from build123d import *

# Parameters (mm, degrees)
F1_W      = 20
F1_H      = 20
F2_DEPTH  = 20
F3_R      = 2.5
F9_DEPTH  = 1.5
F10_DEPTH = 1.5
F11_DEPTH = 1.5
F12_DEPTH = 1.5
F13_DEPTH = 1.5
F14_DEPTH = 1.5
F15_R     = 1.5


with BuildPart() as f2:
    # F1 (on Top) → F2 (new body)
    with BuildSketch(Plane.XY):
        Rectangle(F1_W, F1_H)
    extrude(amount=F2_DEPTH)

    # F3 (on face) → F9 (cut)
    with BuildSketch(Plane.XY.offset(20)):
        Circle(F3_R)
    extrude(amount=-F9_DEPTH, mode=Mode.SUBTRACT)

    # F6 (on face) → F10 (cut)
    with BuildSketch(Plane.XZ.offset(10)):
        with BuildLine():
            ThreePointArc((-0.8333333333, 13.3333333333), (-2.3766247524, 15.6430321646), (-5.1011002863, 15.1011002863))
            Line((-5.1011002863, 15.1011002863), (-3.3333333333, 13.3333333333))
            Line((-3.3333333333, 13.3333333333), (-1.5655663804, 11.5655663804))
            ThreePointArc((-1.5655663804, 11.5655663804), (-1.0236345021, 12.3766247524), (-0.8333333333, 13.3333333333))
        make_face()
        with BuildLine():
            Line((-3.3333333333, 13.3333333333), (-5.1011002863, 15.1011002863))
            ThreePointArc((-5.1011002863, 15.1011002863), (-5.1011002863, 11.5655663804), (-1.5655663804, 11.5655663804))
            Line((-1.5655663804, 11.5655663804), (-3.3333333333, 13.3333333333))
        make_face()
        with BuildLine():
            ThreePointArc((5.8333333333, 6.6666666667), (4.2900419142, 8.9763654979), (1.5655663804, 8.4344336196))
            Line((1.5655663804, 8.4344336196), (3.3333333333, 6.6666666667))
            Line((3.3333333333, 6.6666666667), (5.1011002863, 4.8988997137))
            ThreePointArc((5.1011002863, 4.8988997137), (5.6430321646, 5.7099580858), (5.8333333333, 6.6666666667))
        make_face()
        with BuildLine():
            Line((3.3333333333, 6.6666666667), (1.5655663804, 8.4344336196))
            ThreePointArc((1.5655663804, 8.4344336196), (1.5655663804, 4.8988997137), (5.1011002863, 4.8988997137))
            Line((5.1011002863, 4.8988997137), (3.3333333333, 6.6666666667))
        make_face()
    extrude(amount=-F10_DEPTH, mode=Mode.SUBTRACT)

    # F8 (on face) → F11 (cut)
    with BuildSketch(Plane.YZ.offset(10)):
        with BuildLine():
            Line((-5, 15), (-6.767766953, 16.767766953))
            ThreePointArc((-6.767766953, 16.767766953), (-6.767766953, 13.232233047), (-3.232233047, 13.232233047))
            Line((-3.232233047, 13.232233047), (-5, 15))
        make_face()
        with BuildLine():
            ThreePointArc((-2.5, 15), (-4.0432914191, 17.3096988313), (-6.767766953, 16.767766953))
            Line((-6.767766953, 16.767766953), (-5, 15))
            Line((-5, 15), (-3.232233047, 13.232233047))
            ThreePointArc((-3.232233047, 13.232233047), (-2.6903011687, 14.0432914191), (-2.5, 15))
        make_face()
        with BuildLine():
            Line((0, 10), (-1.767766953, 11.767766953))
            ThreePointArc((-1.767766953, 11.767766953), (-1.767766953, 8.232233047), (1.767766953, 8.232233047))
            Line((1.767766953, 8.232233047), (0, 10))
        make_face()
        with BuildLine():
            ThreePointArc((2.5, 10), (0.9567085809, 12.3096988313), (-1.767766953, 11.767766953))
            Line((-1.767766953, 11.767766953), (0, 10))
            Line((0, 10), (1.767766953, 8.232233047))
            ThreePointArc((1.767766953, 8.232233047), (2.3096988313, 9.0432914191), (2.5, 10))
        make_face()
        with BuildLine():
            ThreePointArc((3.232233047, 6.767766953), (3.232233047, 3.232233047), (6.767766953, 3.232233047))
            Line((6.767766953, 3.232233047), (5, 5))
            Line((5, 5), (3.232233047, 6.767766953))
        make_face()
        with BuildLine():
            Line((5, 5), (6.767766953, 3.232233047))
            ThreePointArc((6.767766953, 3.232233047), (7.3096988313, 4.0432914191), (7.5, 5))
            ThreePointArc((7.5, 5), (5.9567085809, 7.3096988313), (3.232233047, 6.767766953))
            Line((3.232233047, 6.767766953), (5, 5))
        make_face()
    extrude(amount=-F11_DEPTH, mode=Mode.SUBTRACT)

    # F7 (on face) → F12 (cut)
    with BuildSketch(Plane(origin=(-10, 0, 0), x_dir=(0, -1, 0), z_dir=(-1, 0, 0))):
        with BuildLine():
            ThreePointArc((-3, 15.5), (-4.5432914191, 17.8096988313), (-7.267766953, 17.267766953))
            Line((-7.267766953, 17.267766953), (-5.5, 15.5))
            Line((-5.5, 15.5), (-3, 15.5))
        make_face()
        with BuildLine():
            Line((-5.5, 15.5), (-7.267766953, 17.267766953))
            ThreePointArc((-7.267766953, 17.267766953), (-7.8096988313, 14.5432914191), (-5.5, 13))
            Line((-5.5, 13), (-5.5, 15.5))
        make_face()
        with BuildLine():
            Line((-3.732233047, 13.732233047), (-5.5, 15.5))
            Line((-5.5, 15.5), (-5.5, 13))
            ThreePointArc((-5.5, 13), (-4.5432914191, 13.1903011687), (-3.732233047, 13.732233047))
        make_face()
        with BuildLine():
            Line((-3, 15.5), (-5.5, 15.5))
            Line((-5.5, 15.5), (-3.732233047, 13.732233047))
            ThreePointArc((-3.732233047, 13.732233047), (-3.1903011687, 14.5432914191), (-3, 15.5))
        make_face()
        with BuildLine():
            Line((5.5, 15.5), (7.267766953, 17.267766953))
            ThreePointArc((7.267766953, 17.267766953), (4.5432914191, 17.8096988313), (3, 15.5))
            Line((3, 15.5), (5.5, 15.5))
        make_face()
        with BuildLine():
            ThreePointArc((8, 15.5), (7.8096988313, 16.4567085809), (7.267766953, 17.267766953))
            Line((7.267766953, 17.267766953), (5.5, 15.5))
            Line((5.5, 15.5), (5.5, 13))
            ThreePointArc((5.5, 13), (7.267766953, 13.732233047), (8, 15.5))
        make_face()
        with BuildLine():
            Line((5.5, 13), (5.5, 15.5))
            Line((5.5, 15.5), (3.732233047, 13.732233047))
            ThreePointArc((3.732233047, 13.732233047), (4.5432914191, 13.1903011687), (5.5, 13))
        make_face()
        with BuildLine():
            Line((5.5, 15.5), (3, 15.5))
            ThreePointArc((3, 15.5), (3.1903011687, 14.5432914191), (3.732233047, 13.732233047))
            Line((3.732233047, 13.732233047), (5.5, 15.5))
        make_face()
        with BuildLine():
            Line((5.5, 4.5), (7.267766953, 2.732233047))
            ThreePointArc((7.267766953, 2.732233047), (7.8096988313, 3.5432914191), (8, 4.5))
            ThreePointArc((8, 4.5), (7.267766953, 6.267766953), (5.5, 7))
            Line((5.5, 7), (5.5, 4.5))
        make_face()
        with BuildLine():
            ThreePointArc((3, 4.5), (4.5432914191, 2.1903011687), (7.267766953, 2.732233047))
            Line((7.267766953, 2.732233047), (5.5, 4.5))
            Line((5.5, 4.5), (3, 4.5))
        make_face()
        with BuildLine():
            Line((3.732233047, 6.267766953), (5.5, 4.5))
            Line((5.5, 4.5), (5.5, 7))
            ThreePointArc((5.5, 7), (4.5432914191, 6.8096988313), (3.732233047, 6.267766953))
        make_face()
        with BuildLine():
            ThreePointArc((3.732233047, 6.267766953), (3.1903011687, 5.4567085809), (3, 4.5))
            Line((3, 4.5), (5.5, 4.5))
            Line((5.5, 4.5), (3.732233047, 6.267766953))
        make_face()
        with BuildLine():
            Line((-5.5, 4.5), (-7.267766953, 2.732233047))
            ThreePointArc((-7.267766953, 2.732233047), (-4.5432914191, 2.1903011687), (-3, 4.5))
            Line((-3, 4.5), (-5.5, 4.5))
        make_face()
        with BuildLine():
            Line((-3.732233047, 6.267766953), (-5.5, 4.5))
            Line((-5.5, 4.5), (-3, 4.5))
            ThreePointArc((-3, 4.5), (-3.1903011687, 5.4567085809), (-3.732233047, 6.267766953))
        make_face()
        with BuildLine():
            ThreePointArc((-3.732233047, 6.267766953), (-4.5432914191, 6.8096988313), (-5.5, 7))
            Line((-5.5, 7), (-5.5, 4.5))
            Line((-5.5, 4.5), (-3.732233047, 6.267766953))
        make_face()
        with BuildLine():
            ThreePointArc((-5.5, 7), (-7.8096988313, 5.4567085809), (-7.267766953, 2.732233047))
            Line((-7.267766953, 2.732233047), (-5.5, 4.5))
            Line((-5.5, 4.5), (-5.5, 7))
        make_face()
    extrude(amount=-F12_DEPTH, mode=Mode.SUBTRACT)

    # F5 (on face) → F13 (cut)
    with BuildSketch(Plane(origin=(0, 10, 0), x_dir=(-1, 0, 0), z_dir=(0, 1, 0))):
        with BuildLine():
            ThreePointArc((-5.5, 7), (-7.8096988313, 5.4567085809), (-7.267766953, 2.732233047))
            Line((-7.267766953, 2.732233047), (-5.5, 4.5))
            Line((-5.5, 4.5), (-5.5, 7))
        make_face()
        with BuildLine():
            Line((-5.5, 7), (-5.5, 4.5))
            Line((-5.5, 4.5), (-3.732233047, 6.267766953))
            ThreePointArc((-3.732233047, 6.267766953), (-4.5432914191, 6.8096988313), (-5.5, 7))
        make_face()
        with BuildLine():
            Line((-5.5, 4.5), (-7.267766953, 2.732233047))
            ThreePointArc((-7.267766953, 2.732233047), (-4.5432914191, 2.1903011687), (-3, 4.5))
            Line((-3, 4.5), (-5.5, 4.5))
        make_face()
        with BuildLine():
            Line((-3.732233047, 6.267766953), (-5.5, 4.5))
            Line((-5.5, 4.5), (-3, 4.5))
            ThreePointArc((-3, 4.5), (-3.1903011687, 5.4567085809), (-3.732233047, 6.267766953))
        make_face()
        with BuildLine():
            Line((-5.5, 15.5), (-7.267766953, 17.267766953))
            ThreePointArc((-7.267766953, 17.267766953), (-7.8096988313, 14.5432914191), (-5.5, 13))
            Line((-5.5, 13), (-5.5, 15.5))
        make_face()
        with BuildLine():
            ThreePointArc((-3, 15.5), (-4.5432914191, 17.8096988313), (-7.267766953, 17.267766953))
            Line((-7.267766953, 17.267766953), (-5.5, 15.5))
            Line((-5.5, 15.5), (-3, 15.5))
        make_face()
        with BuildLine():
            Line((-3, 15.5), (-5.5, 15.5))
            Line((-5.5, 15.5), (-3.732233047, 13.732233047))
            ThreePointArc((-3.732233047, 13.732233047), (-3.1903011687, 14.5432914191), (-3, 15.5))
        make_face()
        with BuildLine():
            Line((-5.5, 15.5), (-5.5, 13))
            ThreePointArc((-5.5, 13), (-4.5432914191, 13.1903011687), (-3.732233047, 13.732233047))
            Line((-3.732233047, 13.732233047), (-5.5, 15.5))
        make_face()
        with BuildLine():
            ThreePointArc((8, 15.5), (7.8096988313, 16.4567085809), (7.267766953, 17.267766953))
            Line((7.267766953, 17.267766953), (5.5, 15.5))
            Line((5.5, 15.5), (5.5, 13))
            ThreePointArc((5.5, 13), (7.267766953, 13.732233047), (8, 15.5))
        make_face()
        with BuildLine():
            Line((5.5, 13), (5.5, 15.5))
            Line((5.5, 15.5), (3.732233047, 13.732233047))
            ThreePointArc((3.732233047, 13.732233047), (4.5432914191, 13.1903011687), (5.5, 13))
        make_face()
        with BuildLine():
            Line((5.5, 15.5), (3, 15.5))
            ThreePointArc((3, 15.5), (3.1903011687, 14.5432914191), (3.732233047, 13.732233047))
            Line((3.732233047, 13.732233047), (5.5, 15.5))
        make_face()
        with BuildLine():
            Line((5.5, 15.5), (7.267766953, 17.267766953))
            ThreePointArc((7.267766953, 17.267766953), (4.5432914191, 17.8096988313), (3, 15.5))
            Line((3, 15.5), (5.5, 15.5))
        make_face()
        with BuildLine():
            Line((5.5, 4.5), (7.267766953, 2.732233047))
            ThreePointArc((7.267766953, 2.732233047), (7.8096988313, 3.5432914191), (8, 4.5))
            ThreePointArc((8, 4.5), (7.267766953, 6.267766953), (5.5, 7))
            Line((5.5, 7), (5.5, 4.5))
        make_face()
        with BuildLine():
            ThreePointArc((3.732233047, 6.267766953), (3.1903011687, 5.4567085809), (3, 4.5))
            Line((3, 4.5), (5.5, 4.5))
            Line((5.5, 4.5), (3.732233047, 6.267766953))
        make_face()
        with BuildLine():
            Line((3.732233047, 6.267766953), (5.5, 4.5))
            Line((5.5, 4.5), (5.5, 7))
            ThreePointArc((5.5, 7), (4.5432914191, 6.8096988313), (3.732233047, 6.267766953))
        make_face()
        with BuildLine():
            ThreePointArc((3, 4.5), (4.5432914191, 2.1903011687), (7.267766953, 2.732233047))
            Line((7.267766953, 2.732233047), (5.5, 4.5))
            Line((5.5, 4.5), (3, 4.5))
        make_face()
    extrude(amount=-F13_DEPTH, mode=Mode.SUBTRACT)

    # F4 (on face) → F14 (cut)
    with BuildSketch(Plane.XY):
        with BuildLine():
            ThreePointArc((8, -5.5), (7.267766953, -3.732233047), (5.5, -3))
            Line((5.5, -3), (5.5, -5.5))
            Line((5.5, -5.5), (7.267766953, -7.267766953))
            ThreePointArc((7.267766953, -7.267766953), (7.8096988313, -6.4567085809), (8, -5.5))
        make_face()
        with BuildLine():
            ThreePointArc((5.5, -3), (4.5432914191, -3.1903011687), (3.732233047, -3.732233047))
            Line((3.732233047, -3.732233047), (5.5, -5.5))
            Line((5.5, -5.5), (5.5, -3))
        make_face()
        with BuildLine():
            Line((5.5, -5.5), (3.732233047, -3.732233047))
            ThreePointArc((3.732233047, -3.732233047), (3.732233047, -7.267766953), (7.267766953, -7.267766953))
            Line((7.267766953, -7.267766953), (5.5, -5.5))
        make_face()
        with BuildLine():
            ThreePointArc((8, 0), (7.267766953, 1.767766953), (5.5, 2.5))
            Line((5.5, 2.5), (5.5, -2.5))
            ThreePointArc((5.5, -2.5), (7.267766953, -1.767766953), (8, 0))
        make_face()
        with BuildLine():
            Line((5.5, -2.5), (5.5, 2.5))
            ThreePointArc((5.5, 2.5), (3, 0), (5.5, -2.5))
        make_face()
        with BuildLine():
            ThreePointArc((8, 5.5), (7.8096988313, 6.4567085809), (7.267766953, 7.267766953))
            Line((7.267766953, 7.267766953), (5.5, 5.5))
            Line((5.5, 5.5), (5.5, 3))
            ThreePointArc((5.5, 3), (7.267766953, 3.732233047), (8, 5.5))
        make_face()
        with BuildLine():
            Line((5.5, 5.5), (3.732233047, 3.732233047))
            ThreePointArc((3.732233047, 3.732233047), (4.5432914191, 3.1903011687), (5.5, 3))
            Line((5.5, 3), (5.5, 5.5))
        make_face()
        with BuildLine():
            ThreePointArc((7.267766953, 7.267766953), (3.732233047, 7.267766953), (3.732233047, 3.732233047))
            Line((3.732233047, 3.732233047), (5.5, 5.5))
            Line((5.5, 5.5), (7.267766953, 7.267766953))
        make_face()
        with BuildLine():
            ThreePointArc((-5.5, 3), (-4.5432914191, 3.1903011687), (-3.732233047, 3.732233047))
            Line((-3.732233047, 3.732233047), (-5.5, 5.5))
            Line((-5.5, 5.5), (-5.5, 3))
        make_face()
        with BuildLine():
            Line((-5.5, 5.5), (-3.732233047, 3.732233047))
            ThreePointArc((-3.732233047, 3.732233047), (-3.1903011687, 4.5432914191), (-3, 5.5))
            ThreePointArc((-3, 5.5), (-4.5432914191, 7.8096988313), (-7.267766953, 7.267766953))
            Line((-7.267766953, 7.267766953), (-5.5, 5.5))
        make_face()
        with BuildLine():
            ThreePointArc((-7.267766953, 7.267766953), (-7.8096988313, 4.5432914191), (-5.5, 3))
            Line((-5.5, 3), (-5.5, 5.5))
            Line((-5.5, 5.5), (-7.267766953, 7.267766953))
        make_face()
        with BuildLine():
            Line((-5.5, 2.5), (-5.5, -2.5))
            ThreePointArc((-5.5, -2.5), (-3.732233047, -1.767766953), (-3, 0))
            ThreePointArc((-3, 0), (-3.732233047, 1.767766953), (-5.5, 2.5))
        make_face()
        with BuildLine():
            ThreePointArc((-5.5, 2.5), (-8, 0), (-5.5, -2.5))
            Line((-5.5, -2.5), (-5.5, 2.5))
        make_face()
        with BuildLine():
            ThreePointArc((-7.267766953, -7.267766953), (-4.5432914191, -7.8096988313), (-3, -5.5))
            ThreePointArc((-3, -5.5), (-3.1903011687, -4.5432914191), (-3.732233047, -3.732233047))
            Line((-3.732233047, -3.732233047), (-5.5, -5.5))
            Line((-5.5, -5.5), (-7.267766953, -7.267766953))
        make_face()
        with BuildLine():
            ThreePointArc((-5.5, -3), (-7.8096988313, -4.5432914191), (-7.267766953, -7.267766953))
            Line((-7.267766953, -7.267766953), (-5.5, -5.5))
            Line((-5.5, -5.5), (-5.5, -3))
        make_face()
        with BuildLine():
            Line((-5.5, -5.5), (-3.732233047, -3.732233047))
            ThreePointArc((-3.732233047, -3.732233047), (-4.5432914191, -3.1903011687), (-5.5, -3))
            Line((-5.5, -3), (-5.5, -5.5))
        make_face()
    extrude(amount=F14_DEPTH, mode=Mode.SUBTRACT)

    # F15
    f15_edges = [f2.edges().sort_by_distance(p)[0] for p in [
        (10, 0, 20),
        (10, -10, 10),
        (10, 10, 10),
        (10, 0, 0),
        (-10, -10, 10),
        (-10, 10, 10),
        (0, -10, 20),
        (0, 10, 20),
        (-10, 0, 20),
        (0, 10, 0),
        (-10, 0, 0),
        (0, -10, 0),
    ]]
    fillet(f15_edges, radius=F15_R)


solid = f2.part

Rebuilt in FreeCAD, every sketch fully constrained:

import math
import FreeCAD as App
import Part
import Sketcher
from FreeCAD import Vector
Q = App.Units.Quantity


def edges_at(feature, points):
    """Names of the edges that pass closest to the given points."""
    edges = feature.Shape.Edges
    near = lambda p: min(range(len(edges)), key=lambda i: edges[i].distToShape(Part.Vertex(*p))[0])
    return sorted({f"Edge{near(p) + 1}" for p in points})


def add_polygon(sketch, points):
    """Adds a closed chain of lines whose ends are joined by coincident constraints."""
    first, n = sketch.GeometryCount, len(points)
    for a, b in zip(points, points[1:] + points[:1]):
        sketch.addGeometry(Part.LineSegment(App.Vector(*a, 0), App.Vector(*b, 0)), False)
    for i in range(n):
        sketch.addConstraint(Sketcher.Constraint("Coincident", first + i, 2, first + (i + 1) % n, 1))

doc = App.newDocument("Part")
params = doc.addObject("Spreadsheet::Sheet", "Params")
for row, (alias, value) in enumerate([
    ("sketch1_width", "20 mm"),
    ("pad1_length", "20 mm"),
    ("sketch2_diameter", "5 mm"),
    ("pocket1_length", "1.5 mm"),
    ("sketch3_radius", "2.5 mm"),
    ("pocket2_length", "1.5 mm"),
    ("sketch4_radius", "2.5 mm"),
    ("pocket3_length", "1.5 mm"),
    ("sketch5_radius", "2.5 mm"),
    ("pocket4_length", "1.5 mm"),
    ("sketch6_radius", "2.5 mm"),
    ("pocket5_length", "1.5 mm"),
    ("sketch7_radius", "2.5 mm"),
    ("pocket6_length", "1.5 mm"),
    ("fillet_radius", "1.5 mm"),
], start=1):
    params.set(f"A{row}", alias)
    params.set(f"B{row}", "=" + value)
    params.setAlias(f"B{row}", alias)

body = doc.addObject("PartDesign::Body", "Body")

# Sketch on XY plane
sketch1 = doc.addObject("Sketcher::SketchObject", "Sketch")
body.addObject(sketch1)
sketch1.AttachmentSupport = (doc.XY_Plane, [""])
sketch1.MapMode = "FlatFace"
add_polygon(sketch1, [(-10, 10), (-10, -10), (10, -10), (10, 10)])  # lines 0-3
sketch1.addConstraint([
    Sketcher.Constraint("Vertical", 0),
    Sketcher.Constraint("Horizontal", 1),
    Sketcher.Constraint("Vertical", 2),
    Sketcher.Constraint("Horizontal", 3),
    Sketcher.Constraint("Symmetric", 0, 2, 2, 2, -1, 1),
    Sketcher.Constraint("Equal", 3, 0),
    Sketcher.Constraint("DistanceX", 1, 1, 1, 2, Q("20 mm")),
])
sketch1.setExpression("Constraints[10]", "Params.sketch1_width")
pad1 = doc.addObject("PartDesign::Pad", "Pad")
body.addObject(pad1)
pad1.Profile = sketch1
pad1.setExpression("Length", "Params.pad1_length")

# Sketch on XY plane
sketch2 = doc.addObject("Sketcher::SketchObject", "Sketch001")
body.addObject(sketch2)
sketch2.AttachmentSupport = (doc.XY_Plane, [""])
sketch2.MapMode = "FlatFace"
sketch2.AttachmentOffset = App.Placement(Vector(0, 0, 20), App.Rotation())
sketch2.addGeometry(Part.Circle(Vector(0, 0, 0), Vector(0, 0, 1), 2.5), False)
sketch2.addConstraint([
    Sketcher.Constraint("Coincident", 0, 3, -1, 1),
    Sketcher.Constraint("Diameter", 0, Q("5 mm")),
])
sketch2.setExpression("Constraints[1]", "Params.sketch2_diameter")
pocket1 = doc.addObject("PartDesign::Pocket", "Pocket")
body.addObject(pocket1)
pocket1.Profile = sketch2
pocket1.setExpression("Length", "Params.pocket1_length")

# Sketch on XZ plane
sketch3 = doc.addObject("Sketcher::SketchObject", "Sketch002")
body.addObject(sketch3)
sketch3.AttachmentSupport = (doc.XZ_Plane, [""])
sketch3.MapMode = "FlatFace"
sketch3.AttachmentOffset = App.Placement(Vector(0, 0, 10), App.Rotation())
sketch3.addGeometry([
    Part.ArcOfCircle(Part.Circle(Vector(-3.3, 13.3, 0), Vector(0, 0, 1), 2.5), math.radians(0), math.radians(135)),  # 0
    Part.ArcOfCircle(Part.Circle(Vector(-3.3, 13.3, 0), Vector(0, 0, 1), 2.5), math.radians(135), math.radians(315)),  # 1
    Part.ArcOfCircle(Part.Circle(Vector(-3.3, 13.3, 0), Vector(0, 0, 1), 2.5), math.radians(-45), math.radians(0)),  # 2
    Part.ArcOfCircle(Part.Circle(Vector(3.3, 6.7, 0), Vector(0, 0, 1), 2.5), math.radians(0), math.radians(135)),  # 3
    Part.ArcOfCircle(Part.Circle(Vector(3.3, 6.7, 0), Vector(0, 0, 1), 2.5), math.radians(135), math.radians(315)),  # 4
    Part.ArcOfCircle(Part.Circle(Vector(3.3, 6.7, 0), Vector(0, 0, 1), 2.5), math.radians(-45), math.radians(0)),  # 5
], False)
sketch3.addConstraint([
    Sketcher.Constraint("Tangent", 0, 2, 1, 1),
    Sketcher.Constraint("Tangent", 1, 2, 2, 1),
    Sketcher.Constraint("Tangent", 2, 2, 0, 1),
    Sketcher.Constraint("Tangent", 3, 2, 4, 1),
    Sketcher.Constraint("Tangent", 4, 2, 5, 1),
    Sketcher.Constraint("Tangent", 5, 2, 3, 1),
    Sketcher.Constraint("Equal", 2, 3),
    Sketcher.Constraint("Horizontal", 1, 3, 2, 2),
    Sketcher.Constraint("Horizontal", 4, 3, 5, 2),
    Sketcher.Constraint("Radius", 0, Q("2.5 mm")),
    Sketcher.Constraint("DistanceX", 0, 2, -1, 1, Q("5.1011 mm")),
    Sketcher.Constraint("DistanceY", -1, 1, 0, 2, Q("15.1011 mm")),
    Sketcher.Constraint("DistanceX", -1, 1, 4, 2, Q("5.1011 mm")),
    Sketcher.Constraint("DistanceY", -1, 1, 4, 2, Q("4.8989 mm")),
    Sketcher.Constraint("DistanceX", 1, 2, 3, 3, Q("4.8989 mm")),
    Sketcher.Constraint("DistanceX", 2, 2, 3, 2, Q("2.3989 mm")),
    Sketcher.Constraint("DistanceX", 0, 3, -1, 1, Q("3.333333 mm")),
    Sketcher.Constraint("DistanceX", -1, 1, 3, 3, Q("3.333333 mm")),
])
sketch3.setExpression("Constraints[9]", "Params.sketch3_radius")
pocket2 = doc.addObject("PartDesign::Pocket", "Pocket001")
body.addObject(pocket2)
pocket2.Profile = sketch3
pocket2.setExpression("Length", "Params.pocket2_length")

# Sketch on YZ plane
sketch4 = doc.addObject("Sketcher::SketchObject", "Sketch003")
body.addObject(sketch4)
sketch4.AttachmentSupport = (doc.YZ_Plane, [""])
sketch4.MapMode = "FlatFace"
sketch4.AttachmentOffset = App.Placement(Vector(0, 0, 10), App.Rotation())
sketch4.addGeometry([
    Part.ArcOfCircle(Part.Circle(Vector(-5, 15, 0), Vector(0, 0, 1), 2.5), math.radians(135), math.radians(315)),  # 0
    Part.ArcOfCircle(Part.Circle(Vector(-5, 15, 0), Vector(0, 0, 1), 2.5), math.radians(-45), math.radians(0)),  # 1
    Part.ArcOfCircle(Part.Circle(Vector(-5, 15, 0), Vector(0, 0, 1), 2.5), math.radians(0), math.radians(135)),  # 2
    Part.ArcOfCircle(Part.Circle(Vector(0, 10, 0), Vector(0, 0, 1), 2.5), math.radians(135), math.radians(315)),  # 3
    Part.ArcOfCircle(Part.Circle(Vector(0, 10, 0), Vector(0, 0, 1), 2.5), math.radians(-45), math.radians(0)),  # 4
    Part.ArcOfCircle(Part.Circle(Vector(0, 10, 0), Vector(0, 0, 1), 2.5), math.radians(0), math.radians(135)),  # 5
    Part.ArcOfCircle(Part.Circle(Vector(5, 5, 0), Vector(0, 0, 1), 2.5), math.radians(135), math.radians(315)),  # 6
    Part.ArcOfCircle(Part.Circle(Vector(5, 5, 0), Vector(0, 0, 1), 2.5), math.radians(-45), math.radians(0)),  # 7
    Part.ArcOfCircle(Part.Circle(Vector(5, 5, 0), Vector(0, 0, 1), 2.5), math.radians(0), math.radians(135)),  # 8
], False)
sketch4.addConstraint([
    Sketcher.Constraint("Tangent", 0, 2, 1, 1),
    Sketcher.Constraint("Tangent", 1, 2, 2, 1),
    Sketcher.Constraint("Tangent", 2, 2, 0, 1),
    Sketcher.Constraint("Tangent", 3, 2, 4, 1),
    Sketcher.Constraint("Tangent", 4, 2, 5, 1),
    Sketcher.Constraint("Tangent", 5, 2, 3, 1),
    Sketcher.Constraint("Tangent", 6, 2, 7, 1),
    Sketcher.Constraint("Tangent", 7, 2, 8, 1),
    Sketcher.Constraint("Tangent", 8, 2, 6, 1),
    Sketcher.Constraint("Equal", 2, 3),
    Sketcher.Constraint("Equal", 5, 6),
    Sketcher.Constraint("PointOnObject", 3, 3, -2),
    Sketcher.Constraint("Horizontal", 2, 3, 1, 2),
    Sketcher.Constraint("Horizontal", 5, 3, 4, 2),
    Sketcher.Constraint("Horizontal", 8, 3, 7, 2),
    Sketcher.Constraint("Radius", 0, Q("2.5 mm")),
    Sketcher.Constraint("DistanceX", 0, 3, -1, 1, Q("5 mm")),
    Sketcher.Constraint("DistanceY", -1, 1, 0, 3, Q("15 mm")),
    Sketcher.Constraint("DistanceY", -1, 1, 3, 3, Q("10 mm")),
    Sketcher.Constraint("DistanceX", -1, 1, 6, 3, Q("5 mm")),
    Sketcher.Constraint("DistanceY", -1, 1, 6, 3, Q("5 mm")),
    Sketcher.Constraint("DistanceX", 3, 2, 6, 2, Q("5 mm")),
    Sketcher.Constraint("DistanceX", 0, 2, -1, 1, Q("3.232233 mm")),
    Sketcher.Constraint("DistanceX", 2, 2, -1, 1, Q("6.767767 mm")),
    Sketcher.Constraint("DistanceX", -1, 1, 3, 2, Q("1.767767 mm")),
    Sketcher.Constraint("DistanceX", 5, 2, -1, 1, Q("1.767767 mm")),
    Sketcher.Constraint("DistanceX", -1, 1, 8, 2, Q("3.232233 mm")),
])
sketch4.setExpression("Constraints[15]", "Params.sketch4_radius")
pocket3 = doc.addObject("PartDesign::Pocket", "Pocket002")
body.addObject(pocket3)
pocket3.Profile = sketch4
pocket3.setExpression("Length", "Params.pocket3_length")

# Sketch on YZ plane
sketch5 = doc.addObject("Sketcher::SketchObject", "Sketch004")
body.addObject(sketch5)
sketch5.AttachmentSupport = (doc.YZ_Plane, [""])
sketch5.MapMode = "FlatFace"
sketch5.AttachmentOffset = App.Placement(Vector(0, 0, -10), App.Rotation())
sketch5.addGeometry([
    Part.ArcOfCircle(Part.Circle(Vector(5.5, 15.5, 0), Vector(0, 0, 1), 2.5), math.radians(45), math.radians(180)),  # 0
    Part.ArcOfCircle(Part.Circle(Vector(5.5, 15.5, 0), Vector(0, 0, 1), 2.5), math.radians(-90), math.radians(45)),  # 1
    Part.ArcOfCircle(Part.Circle(Vector(5.5, 15.5, 0), Vector(0, 0, 1), 2.5), math.radians(-135), math.radians(-90)),  # 2
    Part.ArcOfCircle(Part.Circle(Vector(5.5, 15.5, 0), Vector(0, 0, 1), 2.5), math.radians(180), math.radians(225)),  # 3
    Part.ArcOfCircle(Part.Circle(Vector(-5.5, 15.5, 0), Vector(0, 0, 1), 2.5), math.radians(0), math.radians(135)),  # 4
    Part.ArcOfCircle(Part.Circle(Vector(-5.5, 15.5, 0), Vector(0, 0, 1), 2.5), math.radians(-45), math.radians(0)),  # 5
    Part.ArcOfCircle(Part.Circle(Vector(-5.5, 15.5, 0), Vector(0, 0, 1), 2.5), math.radians(-90), math.radians(-45)),  # 6
    Part.ArcOfCircle(Part.Circle(Vector(-5.5, 15.5, 0), Vector(0, 0, 1), 2.5), math.radians(180), math.radians(270)),  # 7
    Part.ArcOfCircle(Part.Circle(Vector(-5.5, 15.5, 0), Vector(0, 0, 1), 2.5), math.radians(135), math.radians(180)),  # 8
    Part.ArcOfCircle(Part.Circle(Vector(-5.5, 4.5, 0), Vector(0, 0, 1), 2.5), math.radians(180), math.radians(225)),  # 9
    Part.ArcOfCircle(Part.Circle(Vector(-5.5, 4.5, 0), Vector(0, 0, 1), 2.5), math.radians(90), math.radians(180)),  # 10
    Part.ArcOfCircle(Part.Circle(Vector(-5.5, 4.5, 0), Vector(0, 0, 1), 2.5), math.radians(45), math.radians(90)),  # 11
    Part.ArcOfCircle(Part.Circle(Vector(-5.5, 4.5, 0), Vector(0, 0, 1), 2.5), math.radians(0), math.radians(45)),  # 12
    Part.ArcOfCircle(Part.Circle(Vector(-5.5, 4.5, 0), Vector(0, 0, 1), 2.5), math.radians(-135), math.radians(0)),  # 13
    Part.ArcOfCircle(Part.Circle(Vector(5.5, 4.5, 0), Vector(0, 0, 1), 2.5), math.radians(180), math.radians(315)),  # 14
    Part.ArcOfCircle(Part.Circle(Vector(5.5, 4.5, 0), Vector(0, 0, 1), 2.5), math.radians(135), math.radians(180)),  # 15
    Part.ArcOfCircle(Part.Circle(Vector(5.5, 4.5, 0), Vector(0, 0, 1), 2.5), math.radians(90), math.radians(135)),  # 16
    Part.ArcOfCircle(Part.Circle(Vector(5.5, 4.5, 0), Vector(0, 0, 1), 2.5), math.radians(-45), math.radians(90)),  # 17
], False)
sketch5.addConstraint([
    Sketcher.Constraint("Tangent", 0, 1, 1, 2),
    Sketcher.Constraint("Tangent", 1, 1, 2, 2),
    Sketcher.Constraint("Tangent", 2, 1, 3, 2),
    Sketcher.Constraint("Tangent", 3, 1, 0, 2),
    Sketcher.Constraint("Tangent", 4, 1, 5, 2),
    Sketcher.Constraint("Tangent", 5, 1, 6, 2),
    Sketcher.Constraint("Tangent", 6, 1, 7, 2),
    Sketcher.Constraint("Tangent", 7, 1, 8, 2),
    Sketcher.Constraint("Tangent", 8, 1, 4, 2),
    Sketcher.Constraint("Tangent", 9, 1, 10, 2),
    Sketcher.Constraint("Tangent", 10, 1, 11, 2),
    Sketcher.Constraint("Tangent", 11, 1, 12, 2),
    Sketcher.Constraint("Tangent", 12, 1, 13, 2),
    Sketcher.Constraint("Tangent", 13, 1, 9, 2),
    Sketcher.Constraint("Tangent", 14, 1, 15, 2),
    Sketcher.Constraint("Tangent", 15, 1, 16, 2),
    Sketcher.Constraint("Tangent", 16, 1, 17, 2),
    Sketcher.Constraint("Tangent", 17, 1, 14, 2),
    Sketcher.Constraint("Coincident", 6, 3, 4, 3),
    Sketcher.Constraint("Coincident", 11, 3, 9, 3),
    Sketcher.Constraint("Equal", 0, 1),
    Sketcher.Constraint("Equal", 3, 4),
    Sketcher.Constraint("Equal", 8, 9),
    Sketcher.Constraint("Equal", 13, 14),
    Sketcher.Constraint("Equal", 14, 15),
    Sketcher.Constraint("Symmetric", 0, 3, 4, 3, -2),
    Sketcher.Constraint("Symmetric", 9, 3, 14, 3, -2),
    Sketcher.Constraint("Horizontal", 8, 3, 3, 1),
    Sketcher.Constraint("Horizontal", 3, 1, 4, 1),
    Sketcher.Constraint("Horizontal", 2, 1, 5, 1),
    Sketcher.Constraint("Horizontal", 4, 1, 7, 1),
    Sketcher.Constraint("Horizontal", 0, 1, 8, 1),
    Sketcher.Constraint("Horizontal", 17, 3, 9, 1),
    Sketcher.Constraint("Horizontal", 9, 1, 12, 1),
    Sketcher.Constraint("Horizontal", 12, 1, 14, 1),
    Sketcher.Constraint("Horizontal", 11, 1, 15, 1),
    Sketcher.Constraint("Horizontal", 13, 1, 17, 1),
    Sketcher.Constraint("Vertical", 8, 3, 9, 3),
    Sketcher.Constraint("Vertical", 17, 3, 1, 1),
    Sketcher.Constraint("Vertical", 13, 3, 6, 1),
    Sketcher.Constraint("Vertical", 6, 1, 10, 1),
    Sketcher.Constraint("Vertical", 5, 1, 11, 1),
    Sketcher.Constraint("Vertical", 8, 1, 13, 1),
    Sketcher.Constraint("Vertical", 1, 1, 16, 1),
    Sketcher.Constraint("Radius", 0, Q("2.5 mm")),
    Sketcher.Constraint("DistanceY", -1, 1, 1, 1, Q("13 mm")),
    Sketcher.Constraint("DistanceX", -1, 1, 3, 1, Q("3 mm")),
    Sketcher.Constraint("DistanceY", -1, 1, 10, 1, Q("7 mm")),
    Sketcher.Constraint("DistanceX", -1, 1, 0, 1, Q("7.267767 mm")),
    Sketcher.Constraint("DistanceX", -1, 1, 2, 1, Q("3.732233 mm")),
])
sketch5.setExpression("Constraints[44]", "Params.sketch5_radius")
pocket4 = doc.addObject("PartDesign::Pocket", "Pocket003")
body.addObject(pocket4)
pocket4.Profile = sketch5
pocket4.setExpression("Length", "Params.pocket4_length")
pocket4.Reversed = True

# Sketch on XZ plane
sketch6 = doc.addObject("Sketcher::SketchObject", "Sketch005")
body.addObject(sketch6)
sketch6.AttachmentSupport = (doc.XZ_Plane, [""])
sketch6.MapMode = "FlatFace"
sketch6.AttachmentOffset = App.Placement(Vector(0, 0, -10), App.Rotation())
sketch6.addGeometry([
    Part.ArcOfCircle(Part.Circle(Vector(5.5, 4.5, 0), Vector(0, 0, 1), 2.5), math.radians(-45), math.radians(90)),  # 0
    Part.ArcOfCircle(Part.Circle(Vector(5.5, 4.5, 0), Vector(0, 0, 1), 2.5), math.radians(180), math.radians(315)),  # 1
    Part.ArcOfCircle(Part.Circle(Vector(5.5, 4.5, 0), Vector(0, 0, 1), 2.5), math.radians(135), math.radians(180)),  # 2
    Part.ArcOfCircle(Part.Circle(Vector(5.5, 4.5, 0), Vector(0, 0, 1), 2.5), math.radians(90), math.radians(135)),  # 3
    Part.ArcOfCircle(Part.Circle(Vector(5.5, 15.5, 0), Vector(0, 0, 1), 2.5), math.radians(-90), math.radians(45)),  # 4
    Part.ArcOfCircle(Part.Circle(Vector(5.5, 15.5, 0), Vector(0, 0, 1), 2.5), math.radians(-135), math.radians(-90)),  # 5
    Part.ArcOfCircle(Part.Circle(Vector(5.5, 15.5, 0), Vector(0, 0, 1), 2.5), math.radians(180), math.radians(225)),  # 6
    Part.ArcOfCircle(Part.Circle(Vector(5.5, 15.5, 0), Vector(0, 0, 1), 2.5), math.radians(45), math.radians(180)),  # 7
    Part.ArcOfCircle(Part.Circle(Vector(-5.5, 15.5, 0), Vector(0, 0, 1), 2.5), math.radians(135), math.radians(180)),  # 8
    Part.ArcOfCircle(Part.Circle(Vector(-5.5, 15.5, 0), Vector(0, 0, 1), 2.5), math.radians(0), math.radians(135)),  # 9
    Part.ArcOfCircle(Part.Circle(Vector(-5.5, 15.5, 0), Vector(0, 0, 1), 2.5), math.radians(-45), math.radians(0)),  # 10
    Part.ArcOfCircle(Part.Circle(Vector(-5.5, 15.5, 0), Vector(0, 0, 1), 2.5), math.radians(-90), math.radians(-45)),  # 11
    Part.ArcOfCircle(Part.Circle(Vector(-5.5, 15.5, 0), Vector(0, 0, 1), 2.5), math.radians(180), math.radians(270)),  # 12
    Part.ArcOfCircle(Part.Circle(Vector(-5.5, 4.5, 0), Vector(0, 0, 1), 2.5), math.radians(180), math.radians(225)),  # 13
    Part.ArcOfCircle(Part.Circle(Vector(-5.5, 4.5, 0), Vector(0, 0, 1), 2.5), math.radians(90), math.radians(180)),  # 14
    Part.ArcOfCircle(Part.Circle(Vector(-5.5, 4.5, 0), Vector(0, 0, 1), 2.5), math.radians(45), math.radians(90)),  # 15
    Part.ArcOfCircle(Part.Circle(Vector(-5.5, 4.5, 0), Vector(0, 0, 1), 2.5), math.radians(0), math.radians(45)),  # 16
    Part.ArcOfCircle(Part.Circle(Vector(-5.5, 4.5, 0), Vector(0, 0, 1), 2.5), math.radians(-135), math.radians(0)),  # 17
], False)
sketch6.addConstraint([
    Sketcher.Constraint("Tangent", 0, 1, 1, 2),
    Sketcher.Constraint("Tangent", 1, 1, 2, 2),
    Sketcher.Constraint("Tangent", 2, 1, 3, 2),
    Sketcher.Constraint("Tangent", 3, 1, 0, 2),
    Sketcher.Constraint("Tangent", 4, 1, 5, 2),
    Sketcher.Constraint("Tangent", 5, 1, 6, 2),
    Sketcher.Constraint("Tangent", 6, 1, 7, 2),
    Sketcher.Constraint("Tangent", 7, 1, 4, 2),
    Sketcher.Constraint("Tangent", 8, 1, 9, 2),
    Sketcher.Constraint("Tangent", 9, 1, 10, 2),
    Sketcher.Constraint("Tangent", 10, 1, 11, 2),
    Sketcher.Constraint("Tangent", 11, 1, 12, 2),
    Sketcher.Constraint("Tangent", 12, 1, 8, 2),
    Sketcher.Constraint("Tangent", 13, 1, 14, 2),
    Sketcher.Constraint("Tangent", 14, 1, 15, 2),
    Sketcher.Constraint("Tangent", 15, 1, 16, 2),
    Sketcher.Constraint("Tangent", 16, 1, 17, 2),
    Sketcher.Constraint("Tangent", 17, 1, 13, 2),
    Sketcher.Constraint("Coincident", 10, 3, 8, 3),
    Sketcher.Constraint("Coincident", 15, 3, 13, 3),
    Sketcher.Constraint("Equal", 0, 1),
    Sketcher.Constraint("Equal", 3, 4),
    Sketcher.Constraint("Equal", 4, 5),
    Sketcher.Constraint("Equal", 7, 8),
    Sketcher.Constraint("Equal", 12, 13),
    Sketcher.Constraint("Symmetric", 4, 3, 8, 3, -2),
    Sketcher.Constraint("Symmetric", 0, 3, 13, 3, -2),
    Sketcher.Constraint("Horizontal", 17, 3, 1, 1),
    Sketcher.Constraint("Horizontal", 12, 3, 6, 1),
    Sketcher.Constraint("Horizontal", 7, 1, 8, 1),
    Sketcher.Constraint("Horizontal", 6, 1, 9, 1),
    Sketcher.Constraint("Horizontal", 5, 1, 10, 1),
    Sketcher.Constraint("Horizontal", 9, 1, 12, 1),
    Sketcher.Constraint("Horizontal", 1, 1, 13, 1),
    Sketcher.Constraint("Horizontal", 2, 1, 15, 1),
    Sketcher.Constraint("Horizontal", 13, 1, 16, 1),
    Sketcher.Constraint("Horizontal", 0, 1, 17, 1),
    Sketcher.Constraint("Vertical", 3, 3, 4, 3),
    Sketcher.Constraint("Vertical", 7, 3, 3, 1),
    Sketcher.Constraint("Vertical", 3, 1, 4, 1),
    Sketcher.Constraint("Vertical", 2, 1, 5, 1),
    Sketcher.Constraint("Vertical", 0, 1, 7, 1),
    Sketcher.Constraint("Vertical", 17, 3, 11, 1),
    Sketcher.Constraint("Vertical", 11, 1, 14, 1),
    Sketcher.Constraint("Radius", 0, Q("2.5 mm")),
    Sketcher.Constraint("DistanceX", -1, 1, 1, 1, Q("3 mm")),
    Sketcher.Constraint("DistanceY", -1, 1, 3, 1, Q("7 mm")),
    Sketcher.Constraint("DistanceY", -1, 1, 4, 1, Q("13 mm")),
    Sketcher.Constraint("DistanceX", -1, 1, 0, 1, Q("7.267767 mm")),
    Sketcher.Constraint("DistanceX", -1, 1, 2, 1, Q("3.732233 mm")),
])
sketch6.setExpression("Constraints[44]", "Params.sketch6_radius")
pocket5 = doc.addObject("PartDesign::Pocket", "Pocket004")
body.addObject(pocket5)
pocket5.Profile = sketch6
pocket5.setExpression("Length", "Params.pocket5_length")
pocket5.Reversed = True

# Sketch on XY plane
sketch7 = doc.addObject("Sketcher::SketchObject", "Sketch006")
body.addObject(sketch7)
sketch7.AttachmentSupport = (doc.XY_Plane, [""])
sketch7.MapMode = "FlatFace"
sketch7.addGeometry([
    Part.ArcOfCircle(Part.Circle(Vector(5.5, -5.5, 0), Vector(0, 0, 1), 2.5), math.radians(0), math.radians(90)),  # 0
    Part.ArcOfCircle(Part.Circle(Vector(5.5, -5.5, 0), Vector(0, 0, 1), 2.5), math.radians(90), math.radians(135)),  # 1
    Part.ArcOfCircle(Part.Circle(Vector(5.5, -5.5, 0), Vector(0, 0, 1), 2.5), math.radians(135), math.radians(315)),  # 2
    Part.ArcOfCircle(Part.Circle(Vector(5.5, -5.5, 0), Vector(0, 0, 1), 2.5), math.radians(-45), math.radians(0)),  # 3
    Part.ArcOfCircle(Part.Circle(Vector(5.5, 0, 0), Vector(0, 0, 1), 2.5), math.radians(0), math.radians(90)),  # 4
    Part.ArcOfCircle(Part.Circle(Vector(5.5, 0, 0), Vector(0, 0, 1), 2.5), math.radians(90), math.radians(270)),  # 5
    Part.ArcOfCircle(Part.Circle(Vector(5.5, 0, 0), Vector(0, 0, 1), 2.5), math.radians(-90), math.radians(0)),  # 6
    Part.ArcOfCircle(Part.Circle(Vector(5.5, 5.5, 0), Vector(0, 0, 1), 2.5), math.radians(0), math.radians(45)),  # 7
    Part.ArcOfCircle(Part.Circle(Vector(5.5, 5.5, 0), Vector(0, 0, 1), 2.5), math.radians(45), math.radians(225)),  # 8
    Part.ArcOfCircle(Part.Circle(Vector(5.5, 5.5, 0), Vector(0, 0, 1), 2.5), math.radians(-135), math.radians(-90)),  # 9
    Part.ArcOfCircle(Part.Circle(Vector(5.5, 5.5, 0), Vector(0, 0, 1), 2.5), math.radians(-90), math.radians(0)),  # 10
    Part.ArcOfCircle(Part.Circle(Vector(-5.5, 5.5, 0), Vector(0, 0, 1), 2.5), math.radians(-90), math.radians(-45)),  # 11
    Part.ArcOfCircle(Part.Circle(Vector(-5.5, 5.5, 0), Vector(0, 0, 1), 2.5), math.radians(-45), math.radians(0)),  # 12
    Part.ArcOfCircle(Part.Circle(Vector(-5.5, 5.5, 0), Vector(0, 0, 1), 2.5), math.radians(0), math.radians(135)),  # 13
    Part.ArcOfCircle(Part.Circle(Vector(-5.5, 5.5, 0), Vector(0, 0, 1), 2.5), math.radians(135), math.radians(270)),  # 14
    Part.ArcOfCircle(Part.Circle(Vector(-5.5, 0, 0), Vector(0, 0, 1), 2.5), math.radians(-90), math.radians(0)),  # 15
    Part.ArcOfCircle(Part.Circle(Vector(-5.5, 0, 0), Vector(0, 0, 1), 2.5), math.radians(0), math.radians(90)),  # 16
    Part.ArcOfCircle(Part.Circle(Vector(-5.5, 0, 0), Vector(0, 0, 1), 2.5), math.radians(90), math.radians(270)),  # 17
    Part.ArcOfCircle(Part.Circle(Vector(-5.5, -5.5, 0), Vector(0, 0, 1), 2.5), math.radians(-135), math.radians(0)),  # 18
    Part.ArcOfCircle(Part.Circle(Vector(-5.5, -5.5, 0), Vector(0, 0, 1), 2.5), math.radians(0), math.radians(45)),  # 19
    Part.ArcOfCircle(Part.Circle(Vector(-5.5, -5.5, 0), Vector(0, 0, 1), 2.5), math.radians(45), math.radians(90)),  # 20
    Part.ArcOfCircle(Part.Circle(Vector(-5.5, -5.5, 0), Vector(0, 0, 1), 2.5), math.radians(90), math.radians(225)),  # 21
], False)
sketch7.addConstraint([
    Sketcher.Constraint("Tangent", 0, 2, 1, 1),
    Sketcher.Constraint("Tangent", 1, 2, 2, 1),
    Sketcher.Constraint("Tangent", 2, 2, 3, 1),
    Sketcher.Constraint("Tangent", 3, 2, 0, 1),
    Sketcher.Constraint("Tangent", 4, 2, 5, 1),
    Sketcher.Constraint("Tangent", 5, 2, 6, 1),
    Sketcher.Constraint("Tangent", 6, 2, 4, 1),
    Sketcher.Constraint("Tangent", 7, 2, 8, 1),
    Sketcher.Constraint("Tangent", 8, 2, 9, 1),
    Sketcher.Constraint("Tangent", 9, 2, 10, 1),
    Sketcher.Constraint("Tangent", 10, 2, 7, 1),
    Sketcher.Constraint("Tangent", 11, 2, 12, 1),
    Sketcher.Constraint("Tangent", 12, 2, 13, 1),
    Sketcher.Constraint("Tangent", 13, 2, 14, 1),
    Sketcher.Constraint("Tangent", 14, 2, 11, 1),
    Sketcher.Constraint("Tangent", 15, 2, 16, 1),
    Sketcher.Constraint("Tangent", 16, 2, 17, 1),
    Sketcher.Constraint("Tangent", 17, 2, 15, 1),
    Sketcher.Constraint("Tangent", 18, 2, 19, 1),
    Sketcher.Constraint("Tangent", 19, 2, 20, 1),
    Sketcher.Constraint("Tangent", 20, 2, 21, 1),
    Sketcher.Constraint("Tangent", 21, 2, 18, 1),
    Sketcher.Constraint("Equal", 0, 1),
    Sketcher.Constraint("Equal", 3, 4),
    Sketcher.Constraint("Equal", 6, 7),
    Sketcher.Constraint("Equal", 7, 8),
    Sketcher.Constraint("Equal", 10, 11),
    Sketcher.Constraint("Equal", 11, 12),
    Sketcher.Constraint("Equal", 14, 15),
    Sketcher.Constraint("Equal", 17, 18),
    Sketcher.Constraint("Equal", 18, 19),
    Sketcher.Constraint("Symmetric", 0, 3, 11, 3, -1, 1),
    Sketcher.Constraint("Symmetric", 4, 3, 15, 3, -1, 1),
    Sketcher.Constraint("Symmetric", 7, 3, 18, 3, -1, 1),
    Sketcher.Constraint("Symmetric", 7, 3, 11, 3, -2),
    Sketcher.Constraint("Symmetric", 4, 2, 16, 2, -2),
    Sketcher.Constraint("PointOnObject", 6, 2, -1),
    Sketcher.Constraint("PointOnObject", 15, 2, -1),
    Sketcher.Constraint("Horizontal", 21, 3, 3, 2),
    Sketcher.Constraint("Horizontal", 14, 3, 10, 2),
    Sketcher.Constraint("Horizontal", 8, 2, 11, 2),
    Sketcher.Constraint("Horizontal", 10, 2, 12, 2),
    Sketcher.Constraint("Horizontal", 7, 2, 13, 2),
    Sketcher.Constraint("Horizontal", 3, 2, 18, 2),
    Sketcher.Constraint("Horizontal", 1, 2, 19, 2),
    Sketcher.Constraint("Horizontal", 2, 2, 21, 2),
    Sketcher.Constraint("Vertical", 3, 3, 4, 3),
    Sketcher.Constraint("Vertical", 10, 3, 0, 2),
    Sketcher.Constraint("Vertical", 0, 2, 4, 2),
    Sketcher.Constraint("Vertical", 4, 2, 5, 2),
    Sketcher.Constraint("Vertical", 2, 2, 7, 2),
    Sketcher.Constraint("Vertical", 1, 2, 8, 2),
    Sketcher.Constraint("Vertical", 5, 2, 9, 2),
    Sketcher.Constraint("Vertical", 21, 3, 14, 2),
    Sketcher.Constraint("Vertical", 16, 2, 17, 2),
    Sketcher.Constraint("Vertical", 17, 2, 20, 2),
    Sketcher.Constraint("Radius", 0, Q("2.5 mm")),
    Sketcher.Constraint("DistanceY", 0, 2, -1, 1, Q("3 mm")),
    Sketcher.Constraint("DistanceX", -1, 1, 3, 2, Q("8 mm")),
    Sketcher.Constraint("DistanceX", -1, 1, 1, 2, Q("3.732233 mm")),
    Sketcher.Constraint("DistanceX", -1, 1, 2, 2, Q("7.267767 mm")),
])
sketch7.setExpression("Constraints[56]", "Params.sketch7_radius")
pocket6 = doc.addObject("PartDesign::Pocket", "Pocket005")
body.addObject(pocket6)
pocket6.Profile = sketch7
pocket6.setExpression("Length", "Params.pocket6_length")
pocket6.Reversed = True
doc.recompute()

fillet = doc.addObject("PartDesign::Fillet", "Fillet")
body.addObject(fillet)
fillet.Base = (pocket6, edges_at(pocket6, [
    (10, 0, 20),
    (10, -10, 10),
    (10, 10, 10),
    (10, 0, 0),
    (-10, -10, 10),
    (-10, 10, 10),
    (0, -10, 20),
    (0, 10, 20),
    (-10, 0, 20),
    (0, 10, 0),
    (-10, 0, 0),
    (0, -10, 0),
]))
fillet.setExpression("Radius", "Params.fillet_radius")

doc.recompute()
